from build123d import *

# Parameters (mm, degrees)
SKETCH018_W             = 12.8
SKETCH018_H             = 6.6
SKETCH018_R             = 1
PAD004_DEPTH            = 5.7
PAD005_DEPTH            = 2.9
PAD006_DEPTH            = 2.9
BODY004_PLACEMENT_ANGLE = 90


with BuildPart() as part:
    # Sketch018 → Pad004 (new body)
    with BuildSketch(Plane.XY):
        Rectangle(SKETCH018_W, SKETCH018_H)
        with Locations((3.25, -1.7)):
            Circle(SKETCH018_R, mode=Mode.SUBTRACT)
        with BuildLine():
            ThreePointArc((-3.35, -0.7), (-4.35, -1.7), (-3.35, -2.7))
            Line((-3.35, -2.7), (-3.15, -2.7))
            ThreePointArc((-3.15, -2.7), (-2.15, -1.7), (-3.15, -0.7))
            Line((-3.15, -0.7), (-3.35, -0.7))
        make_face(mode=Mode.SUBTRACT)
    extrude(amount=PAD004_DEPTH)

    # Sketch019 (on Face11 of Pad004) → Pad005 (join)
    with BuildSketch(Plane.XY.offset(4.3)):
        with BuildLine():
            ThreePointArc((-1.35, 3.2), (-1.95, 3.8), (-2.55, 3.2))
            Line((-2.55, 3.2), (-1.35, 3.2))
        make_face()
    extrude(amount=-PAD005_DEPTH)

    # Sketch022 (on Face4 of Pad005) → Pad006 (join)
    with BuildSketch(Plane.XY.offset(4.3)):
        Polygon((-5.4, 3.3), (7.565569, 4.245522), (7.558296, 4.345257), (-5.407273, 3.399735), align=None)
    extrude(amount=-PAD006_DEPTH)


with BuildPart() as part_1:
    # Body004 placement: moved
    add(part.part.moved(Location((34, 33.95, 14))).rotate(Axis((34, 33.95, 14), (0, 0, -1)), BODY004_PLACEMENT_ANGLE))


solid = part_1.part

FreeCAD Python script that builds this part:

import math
import FreeCAD as App
import Part
import Sketcher
from FreeCAD import Vector


def add_polygon(sketch, points):
    """Adds a closed chain of lines whose ends are joined by coincident constraints."""
    first, n = sketch.GeometryCount, len(points)
    for a, b in zip(points, points[1:] + points[:1]):
        sketch.addGeometry(Part.LineSegment(App.Vector(*a, 0), App.Vector(*b, 0)), False)
    for i in range(n):
        sketch.addConstraint(Sketcher.Constraint("Coincident", first + i, 2, first + (i + 1) % n, 1))

doc = App.newDocument("Part")
body = doc.addObject("PartDesign::Body", "Body")

sketch1 = body.newObject("Sketcher::SketchObject", "Sketch")
sketch1.AttachmentSupport = (doc.getObject("XY_Plane"), [""])
sketch1.MapMode = "FlatFace"
add_polygon(sketch1, [(-6.4, 3.3), (-6.4, -3.3), (6.4, -3.3), (6.4, 3.3)])
sketch1.addGeometry(Part.ArcOfCircle(Part.Circle(Vector(-3.35, -1.7, 0), Vector(0, 0, 1), 1), math.radians(90), math.radians(270)), False)
sketch1.addGeometry(Part.LineSegment(Vector(-3.35, -0.7, 0), Vector(-3.15, -0.7, 0)), False)
sketch1.addGeometry(Part.ArcOfCircle(Part.Circle(Vector(-3.15, -1.7, 0), Vector(0, 0, 1), 1), math.radians(-90), math.radians(90)), False)
sketch1.addGeometry(Part.LineSegment(Vector(-3.15, -2.7, 0), Vector(-3.35, -2.7, 0)), False)
sketch1.addGeometry(Part.Circle(Vector(3.25, -1.7, 0), Vector(0, 0, 1), 1), False)
sketch1.addConstraint(Sketcher.Constraint("Tangent", 4, 1, 5, 1))
sketch1.addConstraint(Sketcher.Constraint("Tangent", 5, 2, 6, 2))
sketch1.addConstraint(Sketcher.Constraint("Tangent", 6, 1, 7, 1))
sketch1.addConstraint(Sketcher.Constraint("Tangent", 7, 2, 4, 2))
sketch1.addConstraint(Sketcher.Constraint("Vertical", 0))
sketch1.addConstraint(Sketcher.Constraint("Horizontal", 1))
sketch1.addConstraint(Sketcher.Constraint("Vertical", 2))
sketch1.addConstraint(Sketcher.Constraint("Horizontal", 3))
sketch1.addConstraint(Sketcher.Constraint("Horizontal", 5))
sketch1.addConstraint(Sketcher.Constraint("Horizontal", 7))
sketch1.addConstraint(Sketcher.Constraint("Equal", 6, 8))
sketch1.addConstraint(Sketcher.Constraint("Symmetric", 0, 2, 2, 2, -1, 1))
sketch1.addConstraint(Sketcher.Constraint("Horizontal", 6, 3, 8, 3))
sketch1.addConstraint(Sketcher.Constraint("Diameter", 8, 2.0))
sketch1.addConstraint(Sketcher.Constraint("DistanceX", 1, 1, 1, 2, 12.8))
sketch1.addConstraint(Sketcher.Constraint("DistanceX", 5, 1, 5, 2, 0.2))
sketch1.addConstraint(Sketcher.Constraint("DistanceY", 0, 2, 0, 1, 6.6))
sketch1.addConstraint(Sketcher.Constraint("DistanceY", 8, 3, 2, 2, 5.0))
sketch1.addConstraint(Sketcher.Constraint("DistanceX", 6, 3, 8, 3, 6.4))
sketch1.addConstraint(Sketcher.Constraint("DistanceX", 4, 3, -1, 1, 3.35))
pad1 = body.newObject("PartDesign::Pad", "Pad")
pad1.Profile = sketch1
pad1.Length = 5.7

sketch2 = body.newObject("Sketcher::SketchObject", "Sketch001")
sketch2.AttachmentSupport = (doc.getObject("XY_Plane"), [""])
sketch2.MapMode = "FlatFace"
sketch2.AttachmentOffset = App.Placement(Vector(0, 0, 4.3), App.Rotation())
sketch2.addGeometry(Part.ArcOfCircle(Part.Circle(Vector(-1.9, 3.2, 0), Vector(0, 0, 1), 0.6), math.radians(0), math.radians(180)), False)
sketch2.addGeometry(Part.LineSegment(Vector(-2.5, 3.2, 0), Vector(-1.4, 3.2, 0)), False)
sketch2.addConstraint(Sketcher.Constraint("Coincident", 0, 1, 1, 2))
sketch2.addConstraint(Sketcher.Constraint("Coincident", 1, 1, 0, 2))
sketch2.addConstraint(Sketcher.Constraint("Horizontal", 1))
sketch2.addConstraint(Sketcher.Constraint("Radius", 0, 0.6))
sketch2.addConstraint(Sketcher.Constraint("DistanceY", -1, 1, 0, 3, 3.2))
sketch2.addConstraint(Sketcher.Constraint("DistanceY", -1, 1, 0, 1, 3.2))
sketch2.addConstraint(Sketcher.Constraint("DistanceX", 0, 3, -1, 1, 1.95))
pad2 = body.newObject("PartDesign::Pad", "Pad001")
pad2.Profile = sketch2
pad2.Length = 2.9
pad2.Reversed = True

sketch3 = body.newObject("Sketcher::SketchObject", "Sketch002")
sketch3.AttachmentSupport = (doc.getObject("XY_Plane"), [""])
sketch3.MapMode = "FlatFace"
sketch3.AttachmentOffset = App.Placement(Vector(0, 0, 4.3), App.Rotation())
add_polygon(sketch3, [(-5.4, 3.3), (7.57, 4.25), (7.56, 4.35), (-5.41, 3.4)])
sketch3.addConstraint(Sketcher.Constraint("Parallel", 0, 2))
sketch3.addConstraint(Sketcher.Constraint("Parallel", 1, 3))
sketch3.addConstraint(Sketcher.Constraint("Distance", 0, 13.0))
sketch3.addConstraint(Sketcher.Constraint("Distance", 1, 0.1))
sketch3.addConstraint(Sketcher.Constraint("DistanceX", 3, 2, -1, 1, 5.4))
sketch3.addConstraint(Sketcher.Constraint("DistanceY", -1, 1, 3, 2, 3.3))
sketch3.addConstraint(Sketcher.Constraint("DistanceX", -1, 1, 0, 2, 7.565569))
sketch3.addConstraint(Sketcher.Constraint("DistanceX", -1, 1, 1, 2, 7.558296))
pad3 = body.newObject("PartDesign::Pad", "Pad002")
pad3.Profile = sketch3
pad3.Length = 2.9
pad3.Reversed = True
body2 = doc.addObject("PartDesign::Body", "Body001")
doc.recompute()

body.Placement = App.Placement(Vector(34, 33.95, 14), App.Rotation(Vector(0, 0, -1), 90))
boolean = body2.newObject("PartDesign::Boolean", "Boolean")
boolean.Type = "Fuse"
boolean.addObjects([body])

doc.recompute()
